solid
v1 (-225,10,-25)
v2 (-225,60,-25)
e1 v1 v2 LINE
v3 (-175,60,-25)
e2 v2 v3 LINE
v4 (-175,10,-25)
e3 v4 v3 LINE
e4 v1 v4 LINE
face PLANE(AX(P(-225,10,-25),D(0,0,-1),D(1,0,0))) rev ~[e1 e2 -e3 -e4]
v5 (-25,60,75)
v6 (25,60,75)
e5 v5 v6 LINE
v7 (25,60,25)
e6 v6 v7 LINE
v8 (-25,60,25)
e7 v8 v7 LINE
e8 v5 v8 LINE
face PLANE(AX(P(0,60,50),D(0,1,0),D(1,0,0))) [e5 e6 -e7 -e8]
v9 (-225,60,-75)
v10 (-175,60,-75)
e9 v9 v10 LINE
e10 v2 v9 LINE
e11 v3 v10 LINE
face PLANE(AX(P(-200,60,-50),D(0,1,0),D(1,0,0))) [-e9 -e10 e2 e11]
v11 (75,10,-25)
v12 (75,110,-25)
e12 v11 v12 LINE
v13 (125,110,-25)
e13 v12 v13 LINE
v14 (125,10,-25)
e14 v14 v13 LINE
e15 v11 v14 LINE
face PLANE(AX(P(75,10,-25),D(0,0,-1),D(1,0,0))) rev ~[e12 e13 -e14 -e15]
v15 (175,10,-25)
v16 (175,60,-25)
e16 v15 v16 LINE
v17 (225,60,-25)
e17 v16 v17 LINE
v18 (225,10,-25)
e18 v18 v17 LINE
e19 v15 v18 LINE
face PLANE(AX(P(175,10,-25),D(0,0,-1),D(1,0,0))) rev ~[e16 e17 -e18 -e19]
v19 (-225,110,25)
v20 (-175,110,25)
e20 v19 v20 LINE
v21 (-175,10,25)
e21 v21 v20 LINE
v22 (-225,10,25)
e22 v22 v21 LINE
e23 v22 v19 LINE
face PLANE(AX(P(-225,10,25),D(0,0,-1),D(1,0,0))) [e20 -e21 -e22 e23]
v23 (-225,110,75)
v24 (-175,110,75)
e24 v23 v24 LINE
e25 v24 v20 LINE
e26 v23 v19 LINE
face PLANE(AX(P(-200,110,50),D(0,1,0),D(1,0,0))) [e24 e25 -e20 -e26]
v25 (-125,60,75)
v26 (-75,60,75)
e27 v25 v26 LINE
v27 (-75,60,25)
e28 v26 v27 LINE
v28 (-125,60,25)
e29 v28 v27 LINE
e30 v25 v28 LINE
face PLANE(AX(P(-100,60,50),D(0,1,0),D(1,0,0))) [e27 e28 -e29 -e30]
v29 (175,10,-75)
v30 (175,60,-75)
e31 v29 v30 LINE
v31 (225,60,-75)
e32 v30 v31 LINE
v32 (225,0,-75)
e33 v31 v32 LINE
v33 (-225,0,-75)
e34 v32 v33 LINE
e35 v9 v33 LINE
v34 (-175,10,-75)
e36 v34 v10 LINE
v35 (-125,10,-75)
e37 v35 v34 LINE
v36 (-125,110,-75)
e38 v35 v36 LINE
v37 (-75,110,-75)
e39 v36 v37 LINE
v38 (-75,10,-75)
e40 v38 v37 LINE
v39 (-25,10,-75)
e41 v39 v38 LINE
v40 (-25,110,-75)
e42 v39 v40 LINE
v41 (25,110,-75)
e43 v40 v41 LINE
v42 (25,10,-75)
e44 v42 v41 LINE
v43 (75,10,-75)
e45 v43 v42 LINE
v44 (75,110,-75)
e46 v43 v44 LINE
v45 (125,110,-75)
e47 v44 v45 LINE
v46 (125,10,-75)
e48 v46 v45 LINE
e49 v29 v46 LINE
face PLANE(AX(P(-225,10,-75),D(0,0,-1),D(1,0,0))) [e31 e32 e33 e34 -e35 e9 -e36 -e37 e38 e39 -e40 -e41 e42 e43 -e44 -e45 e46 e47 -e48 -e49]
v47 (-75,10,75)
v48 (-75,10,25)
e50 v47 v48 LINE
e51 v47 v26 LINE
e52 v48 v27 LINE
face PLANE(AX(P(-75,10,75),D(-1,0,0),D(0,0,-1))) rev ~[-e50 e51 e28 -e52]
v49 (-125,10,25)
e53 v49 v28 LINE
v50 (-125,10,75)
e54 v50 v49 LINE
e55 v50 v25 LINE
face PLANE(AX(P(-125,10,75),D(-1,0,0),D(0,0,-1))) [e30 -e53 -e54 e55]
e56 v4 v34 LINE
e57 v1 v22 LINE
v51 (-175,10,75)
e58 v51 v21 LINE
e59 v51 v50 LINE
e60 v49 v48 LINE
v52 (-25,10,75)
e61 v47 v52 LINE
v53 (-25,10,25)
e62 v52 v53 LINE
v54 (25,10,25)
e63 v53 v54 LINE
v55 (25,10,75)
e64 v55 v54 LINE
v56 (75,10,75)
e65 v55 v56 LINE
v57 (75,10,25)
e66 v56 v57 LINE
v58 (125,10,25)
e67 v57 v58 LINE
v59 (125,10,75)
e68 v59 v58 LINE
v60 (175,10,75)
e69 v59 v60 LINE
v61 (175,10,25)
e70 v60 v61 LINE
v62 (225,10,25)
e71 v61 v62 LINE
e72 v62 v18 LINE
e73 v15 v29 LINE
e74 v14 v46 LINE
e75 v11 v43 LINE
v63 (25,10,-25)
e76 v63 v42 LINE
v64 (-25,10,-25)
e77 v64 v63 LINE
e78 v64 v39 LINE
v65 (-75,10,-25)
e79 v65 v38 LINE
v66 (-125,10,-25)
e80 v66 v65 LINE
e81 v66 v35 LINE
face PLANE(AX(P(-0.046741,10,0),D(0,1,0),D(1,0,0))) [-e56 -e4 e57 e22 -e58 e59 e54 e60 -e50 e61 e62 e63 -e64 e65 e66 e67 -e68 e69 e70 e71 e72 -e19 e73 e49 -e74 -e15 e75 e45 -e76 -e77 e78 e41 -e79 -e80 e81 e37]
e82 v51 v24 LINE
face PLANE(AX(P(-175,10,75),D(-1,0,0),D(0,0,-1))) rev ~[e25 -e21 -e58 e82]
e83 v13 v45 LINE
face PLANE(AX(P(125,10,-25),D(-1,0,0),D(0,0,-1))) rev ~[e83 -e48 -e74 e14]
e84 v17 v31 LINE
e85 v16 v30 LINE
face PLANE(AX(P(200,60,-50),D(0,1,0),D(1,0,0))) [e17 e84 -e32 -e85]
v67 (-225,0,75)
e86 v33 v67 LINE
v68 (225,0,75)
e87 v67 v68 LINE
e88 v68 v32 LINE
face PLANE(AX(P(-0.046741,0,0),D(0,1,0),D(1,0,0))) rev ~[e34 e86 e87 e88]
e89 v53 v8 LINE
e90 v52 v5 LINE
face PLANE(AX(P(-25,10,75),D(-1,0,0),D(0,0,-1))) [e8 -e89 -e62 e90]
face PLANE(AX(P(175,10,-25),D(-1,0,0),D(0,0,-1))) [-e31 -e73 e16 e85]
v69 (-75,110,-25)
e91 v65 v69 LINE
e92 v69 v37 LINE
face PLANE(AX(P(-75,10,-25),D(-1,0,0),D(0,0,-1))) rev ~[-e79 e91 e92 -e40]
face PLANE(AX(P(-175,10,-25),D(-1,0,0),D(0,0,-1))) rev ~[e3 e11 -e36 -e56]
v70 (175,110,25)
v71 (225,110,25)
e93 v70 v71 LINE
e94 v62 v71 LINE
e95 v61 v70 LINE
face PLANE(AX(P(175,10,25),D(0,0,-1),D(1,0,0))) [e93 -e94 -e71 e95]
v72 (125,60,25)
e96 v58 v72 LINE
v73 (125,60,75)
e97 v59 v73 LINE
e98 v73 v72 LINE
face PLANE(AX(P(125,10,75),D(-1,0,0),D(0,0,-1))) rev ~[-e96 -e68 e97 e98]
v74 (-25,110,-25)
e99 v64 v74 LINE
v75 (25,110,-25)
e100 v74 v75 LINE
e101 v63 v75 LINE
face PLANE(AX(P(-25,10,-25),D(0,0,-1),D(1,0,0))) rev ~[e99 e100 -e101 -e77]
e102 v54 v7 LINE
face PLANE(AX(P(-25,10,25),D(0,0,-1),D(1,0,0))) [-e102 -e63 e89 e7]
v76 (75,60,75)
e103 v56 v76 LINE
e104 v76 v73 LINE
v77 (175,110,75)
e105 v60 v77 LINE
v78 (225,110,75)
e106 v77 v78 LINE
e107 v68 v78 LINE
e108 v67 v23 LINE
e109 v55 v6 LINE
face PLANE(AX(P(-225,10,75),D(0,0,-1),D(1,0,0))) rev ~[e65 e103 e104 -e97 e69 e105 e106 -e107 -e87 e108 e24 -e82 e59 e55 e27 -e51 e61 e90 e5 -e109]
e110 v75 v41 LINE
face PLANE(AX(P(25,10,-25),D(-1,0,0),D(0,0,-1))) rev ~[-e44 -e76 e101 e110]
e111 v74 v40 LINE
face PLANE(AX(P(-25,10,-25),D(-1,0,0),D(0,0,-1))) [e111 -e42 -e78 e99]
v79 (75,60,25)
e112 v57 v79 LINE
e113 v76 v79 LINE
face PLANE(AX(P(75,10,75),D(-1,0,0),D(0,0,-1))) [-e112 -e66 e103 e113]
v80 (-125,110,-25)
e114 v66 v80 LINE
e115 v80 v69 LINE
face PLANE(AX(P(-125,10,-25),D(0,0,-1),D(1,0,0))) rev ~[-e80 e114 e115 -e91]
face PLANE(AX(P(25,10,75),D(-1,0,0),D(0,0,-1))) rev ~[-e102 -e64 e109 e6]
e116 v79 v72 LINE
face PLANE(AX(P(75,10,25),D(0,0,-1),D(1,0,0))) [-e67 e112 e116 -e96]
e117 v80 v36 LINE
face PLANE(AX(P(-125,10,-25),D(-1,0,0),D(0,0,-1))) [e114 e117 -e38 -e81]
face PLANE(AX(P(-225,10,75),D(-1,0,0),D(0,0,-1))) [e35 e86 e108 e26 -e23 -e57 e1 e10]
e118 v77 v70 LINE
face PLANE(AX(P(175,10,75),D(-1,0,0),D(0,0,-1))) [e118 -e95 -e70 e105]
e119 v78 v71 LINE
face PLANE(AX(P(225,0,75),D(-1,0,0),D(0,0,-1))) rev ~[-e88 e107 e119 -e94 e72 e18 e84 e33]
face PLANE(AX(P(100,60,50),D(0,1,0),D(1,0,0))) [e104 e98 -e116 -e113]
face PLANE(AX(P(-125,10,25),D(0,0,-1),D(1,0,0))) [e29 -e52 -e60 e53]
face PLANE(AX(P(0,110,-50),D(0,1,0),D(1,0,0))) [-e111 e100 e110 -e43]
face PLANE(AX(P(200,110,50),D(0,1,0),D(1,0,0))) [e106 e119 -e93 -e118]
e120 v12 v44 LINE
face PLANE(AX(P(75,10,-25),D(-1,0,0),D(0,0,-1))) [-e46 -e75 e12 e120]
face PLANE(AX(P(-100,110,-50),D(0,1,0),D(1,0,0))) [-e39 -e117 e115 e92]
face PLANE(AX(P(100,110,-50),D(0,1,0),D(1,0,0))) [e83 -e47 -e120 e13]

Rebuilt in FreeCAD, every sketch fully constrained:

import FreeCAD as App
import Part
import Sketcher
from FreeCAD import Vector

doc = App.newDocument("Part")
body = doc.addObject("PartDesign::Body", "Body")

# Sketch on XZ plane
sketch1 = body.newObject("Sketcher::SketchObject", "Sketch")
sketch1.AttachmentSupport = (doc.getObject("XZ_Plane"), [""])
sketch1.MapMode = "FlatFace"
sketch1.addGeometry([
    Part.LineSegment(Vector(-225, -75, 0), Vector(-225, 75, 0)),
    Part.LineSegment(Vector(-225, 75, 0), Vector(225, 75, 0)),
    Part.LineSegment(Vector(225, 75, 0), Vector(225, -75, 0)),
    Part.LineSegment(Vector(225, -75, 0), Vector(-225, -75, 0)),
], False)
sketch1.addConstraint([
    Sketcher.Constraint("Coincident", 0, 2, 1, 1),
    Sketcher.Constraint("Coincident", 1, 2, 2, 1),
    Sketcher.Constraint("Coincident", 2, 2, 3, 1),
    Sketcher.Constraint("Coincident", 3, 2, 0, 1),
    Sketcher.Constraint("Vertical", 0),
    Sketcher.Constraint("Horizontal", 1),
    Sketcher.Constraint("Vertical", 2),
    Sketcher.Constraint("Horizontal", 3),
    Sketcher.Constraint("Symmetric", 0, 2, 2, 2, -1, 1),
    Sketcher.Constraint("DistanceX", 1, 1, 1, 2, 450.0),
    Sketcher.Constraint("DistanceY", 0, 1, 0, 2, 150.0),
])
pad1 = body.newObject("PartDesign::Pad", "Pad")
pad1.Profile = sketch1
pad1.Length = 10
pad1.Reversed = True

# Sketch on XZ plane
sketch2 = body.newObject("Sketcher::SketchObject", "Sketch001")
sketch2.AttachmentSupport = (doc.getObject("XZ_Plane"), [""])
sketch2.MapMode = "FlatFace"
sketch2.AttachmentOffset = App.Placement(Vector(0, 0, -10), App.Rotation())
sketch2.addGeometry([
    Part.LineSegment(Vector(-225, -75, 0), Vector(-225, -25, 0)),  # 0
    Part.LineSegment(Vector(-225, -25, 0), Vector(-175, -25, 0)),  # 1
    Part.LineSegment(Vector(-175, -25, 0), Vector(-175, -75, 0)),  # 2
    Part.LineSegment(Vector(-175, -75, 0), Vector(-225, -75, 0)),  # 3
    Part.LineSegment(Vector(175, -75, 0), Vector(175, -25, 0)),  # 4
    Part.LineSegment(Vector(175, -25, 0), Vector(225, -25, 0)),  # 5
    Part.LineSegment(Vector(225, -25, 0), Vector(225, -75, 0)),  # 6
    Part.LineSegment(Vector(225, -75, 0), Vector(175, -75, 0)),  # 7
], False)
sketch2.addConstraint([
    Sketcher.Constraint("Coincident", 0, 2, 1, 1),
    Sketcher.Constraint("Coincident", 1, 2, 2, 1),
    Sketcher.Constraint("Coincident", 2, 2, 3, 1),
    Sketcher.Constraint("Coincident", 3, 2, 0, 1),
    Sketcher.Constraint("Coincident", 4, 2, 5, 1),
    Sketcher.Constraint("Coincident", 5, 2, 6, 1),
    Sketcher.Constraint("Coincident", 6, 2, 7, 1),
    Sketcher.Constraint("Coincident", 7, 2, 4, 1),
    Sketcher.Constraint("Vertical", 0),
    Sketcher.Constraint("Horizontal", 1),
    Sketcher.Constraint("Vertical", 2),
    Sketcher.Constraint("Horizontal", 3),
    Sketcher.Constraint("Vertical", 4),
    Sketcher.Constraint("Horizontal", 5),
    Sketcher.Constraint("Vertical", 6),
    Sketcher.Constraint("Horizontal", 7),
    Sketcher.Constraint("Symmetric", 1, 2, 4, 2, -2),
    Sketcher.Constraint("Symmetric", 3, 2, 6, 2, -2),
    Sketcher.Constraint("Equal", 7, 0),
    Sketcher.Constraint("DistanceX", 1, 1, 1, 2, 50.0),
    Sketcher.Constraint("DistanceX", 0, 2, -1, 1, 225.0),
    Sketcher.Constraint("DistanceY", 0, 2, -1, 1, 25.0),
])
pad2 = body.newObject("PartDesign::Pad", "Pad001")
pad2.Profile = sketch2
pad2.Length = 50
pad2.Reversed = True

# Sketch on XZ plane
sketch3 = body.newObject("Sketcher::SketchObject", "Sketch002")
sketch3.AttachmentSupport = (doc.getObject("XZ_Plane"), [""])
sketch3.MapMode = "FlatFace"
sketch3.AttachmentOffset = App.Placement(Vector(0, 0, -10), App.Rotation())
sketch3.addGeometry([
    Part.LineSegment(Vector(-225, 25, 0), Vector(-225, 75, 0)),  # 0
    Part.LineSegment(Vector(-225, 75, 0), Vector(-175, 75, 0)),  # 1
    Part.LineSegment(Vector(-175, 75, 0), Vector(-175, 25, 0)),  # 2
    Part.LineSegment(Vector(-175, 25, 0), Vector(-225, 25, 0)),  # 3
    Part.LineSegment(Vector(175, 25, 0), Vector(175, 75, 0)),  # 4
    Part.LineSegment(Vector(175, 75, 0), Vector(225, 75, 0)),  # 5
    Part.LineSegment(Vector(225, 75, 0), Vector(225, 25, 0)),  # 6
    Part.LineSegment(Vector(225, 25, 0), Vector(175, 25, 0)),  # 7
], False)
sketch3.addConstraint([
    Sketcher.Constraint("Coincident", 0, 2, 1, 1),
    Sketcher.Constraint("Coincident", 1, 2, 2, 1),
    Sketcher.Constraint("Coincident", 2, 2, 3, 1),
    Sketcher.Constraint("Coincident", 3, 2, 0, 1),
    Sketcher.Constraint("Coincident", 4, 2, 5, 1),
    Sketcher.Constraint("Coincident", 5, 2, 6, 1),
    Sketcher.Constraint("Coincident", 6, 2, 7, 1),
    Sketcher.Constraint("Coincident", 7, 2, 4, 1),
    Sketcher.Constraint("Vertical", 0),
    Sketcher.Constraint("Horizontal", 1),
    Sketcher.Constraint("Vertical", 2),
    Sketcher.Constraint("Horizontal", 3),
    Sketcher.Constraint("Vertical", 4),
    Sketcher.Constraint("Horizontal", 5),
    Sketcher.Constraint("Vertical", 6),
    Sketcher.Constraint("Horizontal", 7),
    Sketcher.Constraint("Symmetric", 1, 2, 4, 2, -2),
    Sketcher.Constraint("Symmetric", 3, 2, 6, 2, -2),
    Sketcher.Constraint("Equal", 7, 0),
    Sketcher.Constraint("DistanceX", 1, 1, 1, 2, 50.0),
    Sketcher.Constraint("DistanceX", 0, 2, -1, 1, 225.0),
    Sketcher.Constraint("DistanceY", -1, 1, 0, 2, 75.0),
])
pad3 = body.newObject("PartDesign::Pad", "Pad002")
pad3.Profile = sketch3
pad3.Length = 100
pad3.Reversed = True

# Sketch on XZ plane
sketch4 = body.newObject("Sketcher::SketchObject", "Sketch003")
sketch4.AttachmentSupport = (doc.getObject("XZ_Plane"), [""])
sketch4.MapMode = "FlatFace"
sketch4.AttachmentOffset = App.Placement(Vector(0, 0, -10), App.Rotation())
sketch4.addGeometry([
    Part.LineSegment(Vector(-125, -75, 0), Vector(-125, -25, 0)),  # 0
    Part.LineSegment(Vector(-125, -25, 0), Vector(-75, -25, 0)),  # 1
    Part.LineSegment(Vector(-75, -25, 0), Vector(-75, -75, 0)),  # 2
    Part.LineSegment(Vector(-75, -75, 0), Vector(-125, -75, 0)),  # 3
    Part.LineSegment(Vector(-25, -75, 0), Vector(-25, -25, 0)),  # 4
    Part.LineSegment(Vector(-25, -25, 0), Vector(25, -25, 0)),  # 5
    Part.LineSegment(Vector(25, -25, 0), Vector(25, -75, 0)),  # 6
    Part.LineSegment(Vector(25, -75, 0), Vector(-25, -75, 0)),  # 7
    Part.LineSegment(Vector(75, -75, 0), Vector(75, -25, 0)),  # 8
    Part.LineSegment(Vector(75, -25, 0), Vector(125, -25, 0)),  # 9
    Part.LineSegment(Vector(125, -25, 0), Vector(125, -75, 0)),  # 10
    Part.LineSegment(Vector(125, -75, 0), Vector(75, -75, 0)),  # 11
], False)
sketch4.addConstraint([
    Sketcher.Constraint("Coincident", 0, 2, 1, 1),
    Sketcher.Constraint("Coincident", 1, 2, 2, 1),
    Sketcher.Constraint("Coincident", 2, 2, 3, 1),
    Sketcher.Constraint("Coincident", 3, 2, 0, 1),
    Sketcher.Constraint("Coincident", 4, 2, 5, 1),
    Sketcher.Constraint("Coincident", 5, 2, 6, 1),
    Sketcher.Constraint("Coincident", 6, 2, 7, 1),
    Sketcher.Constraint("Coincident", 7, 2, 4, 1),
    Sketcher.Constraint("Coincident", 8, 2, 9, 1),
    Sketcher.Constraint("Coincident", 9, 2, 10, 1),
    Sketcher.Constraint("Coincident", 10, 2, 11, 1),
    Sketcher.Constraint("Coincident", 11, 2, 8, 1),
    Sketcher.Constraint("Vertical", 0),
    Sketcher.Constraint("Horizontal", 1),
    Sketcher.Constraint("Vertical", 2),
    Sketcher.Constraint("Horizontal", 3),
    Sketcher.Constraint("Vertical", 4),
    Sketcher.Constraint("Horizontal", 5),
    Sketcher.Constraint("Vertical", 6),
    Sketcher.Constraint("Horizontal", 7),
    Sketcher.Constraint("Vertical", 8),
    Sketcher.Constraint("Horizontal", 9),
    Sketcher.Constraint("Vertical", 10),
    Sketcher.Constraint("Horizontal", 11),
    Sketcher.Constraint("Symmetric", 1, 2, 8, 2, -2),
    Sketcher.Constraint("Symmetric", 3, 2, 10, 2, -2),
    Sketcher.Constraint("Horizontal", 1, 2, 4, 2),
    Sketcher.Constraint("Horizontal", 3, 2, 6, 2),
    Sketcher.Constraint("Equal", 3, 5),
    Sketcher.Constraint("Equal", 11, 0),
    Sketcher.Constraint("DistanceX", 1, 1, 1, 2, 50.0),
    Sketcher.Constraint("DistanceX", 0, 2, -1, 1, 125.0),
    Sketcher.Constraint("DistanceY", 0, 2, -1, 1, 25.0),
    Sketcher.Constraint("DistanceX", 4, 2, -1, 1, 25.0),
])
pad4 = body.newObject("PartDesign::Pad", "Pad003")
pad4.Profile = sketch4
pad4.Length = 100
pad4.Reversed = True

# Sketch on XZ plane
sketch5 = body.newObject("Sketcher::SketchObject", "Sketch004")
sketch5.AttachmentSupport = (doc.getObject("XZ_Plane"), [""])
sketch5.MapMode = "FlatFace"
sketch5.AttachmentOffset = App.Placement(Vector(0, 0, -10), App.Rotation())
sketch5.addGeometry([
    Part.LineSegment(Vector(-125, 25, 0), Vector(-125, 75, 0)),  # 0
    Part.LineSegment(Vector(-125, 75, 0), Vector(-75, 75, 0)),  # 1
    Part.LineSegment(Vector(-75, 75, 0), Vector(-75, 25, 0)),  # 2
    Part.LineSegment(Vector(-75, 25, 0), Vector(-125, 25, 0)),  # 3
    Part.LineSegment(Vector(-25, 25, 0), Vector(-25, 75, 0)),  # 4
    Part.LineSegment(Vector(-25, 75, 0), Vector(25, 75, 0)),  # 5
    Part.LineSegment(Vector(25, 75, 0), Vector(25, 25, 0)),  # 6
    Part.LineSegment(Vector(25, 25, 0), Vector(-25, 25, 0)),  # 7
    Part.LineSegment(Vector(75, 25, 0), Vector(75, 75, 0)),  # 8
    Part.LineSegment(Vector(75, 75, 0), Vector(125, 75, 0)),  # 9
    Part.LineSegment(Vector(125, 75, 0), Vector(125, 25, 0)),  # 10
    Part.LineSegment(Vector(125, 25, 0), Vector(75, 25, 0)),  # 11
], False)
sketch5.addConstraint([
    Sketcher.Constraint("Coincident", 0, 2, 1, 1),
    Sketcher.Constraint("Coincident", 1, 2, 2, 1),
    Sketcher.Constraint("Coincident", 2, 2, 3, 1),
    Sketcher.Constraint("Coincident", 3, 2, 0, 1),
    Sketcher.Constraint("Coincident", 4, 2, 5, 1),
    Sketcher.Constraint("Coincident", 5, 2, 6, 1),
    Sketcher.Constraint("Coincident", 6, 2, 7, 1),
    Sketcher.Constraint("Coincident", 7, 2, 4, 1),
    Sketcher.Constraint("Coincident", 8, 2, 9, 1),
    Sketcher.Constraint("Coincident", 9, 2, 10, 1),
    Sketcher.Constraint("Coincident", 10, 2, 11, 1),
    Sketcher.Constraint("Coincident", 11, 2, 8, 1),
    Sketcher.Constraint("Vertical", 0),
    Sketcher.Constraint("Horizontal", 1),
    Sketcher.Constraint("Vertical", 2),
    Sketcher.Constraint("Horizontal", 3),
    Sketcher.Constraint("Vertical", 4),
    Sketcher.Constraint("Horizontal", 5),
    Sketcher.Constraint("Vertical", 6),
    Sketcher.Constraint("Horizontal", 7),
    Sketcher.Constraint("Vertical", 8),
    Sketcher.Constraint("Horizontal", 9),
    Sketcher.Constraint("Vertical", 10),
    Sketcher.Constraint("Horizontal", 11),
    Sketcher.Constraint("Symmetric", 1, 2, 8, 2, -2),
    Sketcher.Constraint("Symmetric", 3, 2, 10, 2, -2),
    Sketcher.Constraint("Horizontal", 1, 2, 4, 2),
    Sketcher.Constraint("Horizontal", 3, 2, 6, 2),
    Sketcher.Constraint("Equal", 3, 5),
    Sketcher.Constraint("Equal", 11, 0),
    Sketcher.Constraint("DistanceX", 1, 1, 1, 2, 50.0),
    Sketcher.Constraint("DistanceX", 0, 2, -1, 1, 125.0),
    Sketcher.Constraint("DistanceY", -1, 1, 0, 2, 75.0),
    Sketcher.Constraint("DistanceX", 4, 2, -1, 1, 25.0),
])
pad5 = body.newObject("PartDesign::Pad", "Pad004")
pad5.Profile = sketch5
pad5.Length = 50
pad5.Reversed = True

doc.recompute()
